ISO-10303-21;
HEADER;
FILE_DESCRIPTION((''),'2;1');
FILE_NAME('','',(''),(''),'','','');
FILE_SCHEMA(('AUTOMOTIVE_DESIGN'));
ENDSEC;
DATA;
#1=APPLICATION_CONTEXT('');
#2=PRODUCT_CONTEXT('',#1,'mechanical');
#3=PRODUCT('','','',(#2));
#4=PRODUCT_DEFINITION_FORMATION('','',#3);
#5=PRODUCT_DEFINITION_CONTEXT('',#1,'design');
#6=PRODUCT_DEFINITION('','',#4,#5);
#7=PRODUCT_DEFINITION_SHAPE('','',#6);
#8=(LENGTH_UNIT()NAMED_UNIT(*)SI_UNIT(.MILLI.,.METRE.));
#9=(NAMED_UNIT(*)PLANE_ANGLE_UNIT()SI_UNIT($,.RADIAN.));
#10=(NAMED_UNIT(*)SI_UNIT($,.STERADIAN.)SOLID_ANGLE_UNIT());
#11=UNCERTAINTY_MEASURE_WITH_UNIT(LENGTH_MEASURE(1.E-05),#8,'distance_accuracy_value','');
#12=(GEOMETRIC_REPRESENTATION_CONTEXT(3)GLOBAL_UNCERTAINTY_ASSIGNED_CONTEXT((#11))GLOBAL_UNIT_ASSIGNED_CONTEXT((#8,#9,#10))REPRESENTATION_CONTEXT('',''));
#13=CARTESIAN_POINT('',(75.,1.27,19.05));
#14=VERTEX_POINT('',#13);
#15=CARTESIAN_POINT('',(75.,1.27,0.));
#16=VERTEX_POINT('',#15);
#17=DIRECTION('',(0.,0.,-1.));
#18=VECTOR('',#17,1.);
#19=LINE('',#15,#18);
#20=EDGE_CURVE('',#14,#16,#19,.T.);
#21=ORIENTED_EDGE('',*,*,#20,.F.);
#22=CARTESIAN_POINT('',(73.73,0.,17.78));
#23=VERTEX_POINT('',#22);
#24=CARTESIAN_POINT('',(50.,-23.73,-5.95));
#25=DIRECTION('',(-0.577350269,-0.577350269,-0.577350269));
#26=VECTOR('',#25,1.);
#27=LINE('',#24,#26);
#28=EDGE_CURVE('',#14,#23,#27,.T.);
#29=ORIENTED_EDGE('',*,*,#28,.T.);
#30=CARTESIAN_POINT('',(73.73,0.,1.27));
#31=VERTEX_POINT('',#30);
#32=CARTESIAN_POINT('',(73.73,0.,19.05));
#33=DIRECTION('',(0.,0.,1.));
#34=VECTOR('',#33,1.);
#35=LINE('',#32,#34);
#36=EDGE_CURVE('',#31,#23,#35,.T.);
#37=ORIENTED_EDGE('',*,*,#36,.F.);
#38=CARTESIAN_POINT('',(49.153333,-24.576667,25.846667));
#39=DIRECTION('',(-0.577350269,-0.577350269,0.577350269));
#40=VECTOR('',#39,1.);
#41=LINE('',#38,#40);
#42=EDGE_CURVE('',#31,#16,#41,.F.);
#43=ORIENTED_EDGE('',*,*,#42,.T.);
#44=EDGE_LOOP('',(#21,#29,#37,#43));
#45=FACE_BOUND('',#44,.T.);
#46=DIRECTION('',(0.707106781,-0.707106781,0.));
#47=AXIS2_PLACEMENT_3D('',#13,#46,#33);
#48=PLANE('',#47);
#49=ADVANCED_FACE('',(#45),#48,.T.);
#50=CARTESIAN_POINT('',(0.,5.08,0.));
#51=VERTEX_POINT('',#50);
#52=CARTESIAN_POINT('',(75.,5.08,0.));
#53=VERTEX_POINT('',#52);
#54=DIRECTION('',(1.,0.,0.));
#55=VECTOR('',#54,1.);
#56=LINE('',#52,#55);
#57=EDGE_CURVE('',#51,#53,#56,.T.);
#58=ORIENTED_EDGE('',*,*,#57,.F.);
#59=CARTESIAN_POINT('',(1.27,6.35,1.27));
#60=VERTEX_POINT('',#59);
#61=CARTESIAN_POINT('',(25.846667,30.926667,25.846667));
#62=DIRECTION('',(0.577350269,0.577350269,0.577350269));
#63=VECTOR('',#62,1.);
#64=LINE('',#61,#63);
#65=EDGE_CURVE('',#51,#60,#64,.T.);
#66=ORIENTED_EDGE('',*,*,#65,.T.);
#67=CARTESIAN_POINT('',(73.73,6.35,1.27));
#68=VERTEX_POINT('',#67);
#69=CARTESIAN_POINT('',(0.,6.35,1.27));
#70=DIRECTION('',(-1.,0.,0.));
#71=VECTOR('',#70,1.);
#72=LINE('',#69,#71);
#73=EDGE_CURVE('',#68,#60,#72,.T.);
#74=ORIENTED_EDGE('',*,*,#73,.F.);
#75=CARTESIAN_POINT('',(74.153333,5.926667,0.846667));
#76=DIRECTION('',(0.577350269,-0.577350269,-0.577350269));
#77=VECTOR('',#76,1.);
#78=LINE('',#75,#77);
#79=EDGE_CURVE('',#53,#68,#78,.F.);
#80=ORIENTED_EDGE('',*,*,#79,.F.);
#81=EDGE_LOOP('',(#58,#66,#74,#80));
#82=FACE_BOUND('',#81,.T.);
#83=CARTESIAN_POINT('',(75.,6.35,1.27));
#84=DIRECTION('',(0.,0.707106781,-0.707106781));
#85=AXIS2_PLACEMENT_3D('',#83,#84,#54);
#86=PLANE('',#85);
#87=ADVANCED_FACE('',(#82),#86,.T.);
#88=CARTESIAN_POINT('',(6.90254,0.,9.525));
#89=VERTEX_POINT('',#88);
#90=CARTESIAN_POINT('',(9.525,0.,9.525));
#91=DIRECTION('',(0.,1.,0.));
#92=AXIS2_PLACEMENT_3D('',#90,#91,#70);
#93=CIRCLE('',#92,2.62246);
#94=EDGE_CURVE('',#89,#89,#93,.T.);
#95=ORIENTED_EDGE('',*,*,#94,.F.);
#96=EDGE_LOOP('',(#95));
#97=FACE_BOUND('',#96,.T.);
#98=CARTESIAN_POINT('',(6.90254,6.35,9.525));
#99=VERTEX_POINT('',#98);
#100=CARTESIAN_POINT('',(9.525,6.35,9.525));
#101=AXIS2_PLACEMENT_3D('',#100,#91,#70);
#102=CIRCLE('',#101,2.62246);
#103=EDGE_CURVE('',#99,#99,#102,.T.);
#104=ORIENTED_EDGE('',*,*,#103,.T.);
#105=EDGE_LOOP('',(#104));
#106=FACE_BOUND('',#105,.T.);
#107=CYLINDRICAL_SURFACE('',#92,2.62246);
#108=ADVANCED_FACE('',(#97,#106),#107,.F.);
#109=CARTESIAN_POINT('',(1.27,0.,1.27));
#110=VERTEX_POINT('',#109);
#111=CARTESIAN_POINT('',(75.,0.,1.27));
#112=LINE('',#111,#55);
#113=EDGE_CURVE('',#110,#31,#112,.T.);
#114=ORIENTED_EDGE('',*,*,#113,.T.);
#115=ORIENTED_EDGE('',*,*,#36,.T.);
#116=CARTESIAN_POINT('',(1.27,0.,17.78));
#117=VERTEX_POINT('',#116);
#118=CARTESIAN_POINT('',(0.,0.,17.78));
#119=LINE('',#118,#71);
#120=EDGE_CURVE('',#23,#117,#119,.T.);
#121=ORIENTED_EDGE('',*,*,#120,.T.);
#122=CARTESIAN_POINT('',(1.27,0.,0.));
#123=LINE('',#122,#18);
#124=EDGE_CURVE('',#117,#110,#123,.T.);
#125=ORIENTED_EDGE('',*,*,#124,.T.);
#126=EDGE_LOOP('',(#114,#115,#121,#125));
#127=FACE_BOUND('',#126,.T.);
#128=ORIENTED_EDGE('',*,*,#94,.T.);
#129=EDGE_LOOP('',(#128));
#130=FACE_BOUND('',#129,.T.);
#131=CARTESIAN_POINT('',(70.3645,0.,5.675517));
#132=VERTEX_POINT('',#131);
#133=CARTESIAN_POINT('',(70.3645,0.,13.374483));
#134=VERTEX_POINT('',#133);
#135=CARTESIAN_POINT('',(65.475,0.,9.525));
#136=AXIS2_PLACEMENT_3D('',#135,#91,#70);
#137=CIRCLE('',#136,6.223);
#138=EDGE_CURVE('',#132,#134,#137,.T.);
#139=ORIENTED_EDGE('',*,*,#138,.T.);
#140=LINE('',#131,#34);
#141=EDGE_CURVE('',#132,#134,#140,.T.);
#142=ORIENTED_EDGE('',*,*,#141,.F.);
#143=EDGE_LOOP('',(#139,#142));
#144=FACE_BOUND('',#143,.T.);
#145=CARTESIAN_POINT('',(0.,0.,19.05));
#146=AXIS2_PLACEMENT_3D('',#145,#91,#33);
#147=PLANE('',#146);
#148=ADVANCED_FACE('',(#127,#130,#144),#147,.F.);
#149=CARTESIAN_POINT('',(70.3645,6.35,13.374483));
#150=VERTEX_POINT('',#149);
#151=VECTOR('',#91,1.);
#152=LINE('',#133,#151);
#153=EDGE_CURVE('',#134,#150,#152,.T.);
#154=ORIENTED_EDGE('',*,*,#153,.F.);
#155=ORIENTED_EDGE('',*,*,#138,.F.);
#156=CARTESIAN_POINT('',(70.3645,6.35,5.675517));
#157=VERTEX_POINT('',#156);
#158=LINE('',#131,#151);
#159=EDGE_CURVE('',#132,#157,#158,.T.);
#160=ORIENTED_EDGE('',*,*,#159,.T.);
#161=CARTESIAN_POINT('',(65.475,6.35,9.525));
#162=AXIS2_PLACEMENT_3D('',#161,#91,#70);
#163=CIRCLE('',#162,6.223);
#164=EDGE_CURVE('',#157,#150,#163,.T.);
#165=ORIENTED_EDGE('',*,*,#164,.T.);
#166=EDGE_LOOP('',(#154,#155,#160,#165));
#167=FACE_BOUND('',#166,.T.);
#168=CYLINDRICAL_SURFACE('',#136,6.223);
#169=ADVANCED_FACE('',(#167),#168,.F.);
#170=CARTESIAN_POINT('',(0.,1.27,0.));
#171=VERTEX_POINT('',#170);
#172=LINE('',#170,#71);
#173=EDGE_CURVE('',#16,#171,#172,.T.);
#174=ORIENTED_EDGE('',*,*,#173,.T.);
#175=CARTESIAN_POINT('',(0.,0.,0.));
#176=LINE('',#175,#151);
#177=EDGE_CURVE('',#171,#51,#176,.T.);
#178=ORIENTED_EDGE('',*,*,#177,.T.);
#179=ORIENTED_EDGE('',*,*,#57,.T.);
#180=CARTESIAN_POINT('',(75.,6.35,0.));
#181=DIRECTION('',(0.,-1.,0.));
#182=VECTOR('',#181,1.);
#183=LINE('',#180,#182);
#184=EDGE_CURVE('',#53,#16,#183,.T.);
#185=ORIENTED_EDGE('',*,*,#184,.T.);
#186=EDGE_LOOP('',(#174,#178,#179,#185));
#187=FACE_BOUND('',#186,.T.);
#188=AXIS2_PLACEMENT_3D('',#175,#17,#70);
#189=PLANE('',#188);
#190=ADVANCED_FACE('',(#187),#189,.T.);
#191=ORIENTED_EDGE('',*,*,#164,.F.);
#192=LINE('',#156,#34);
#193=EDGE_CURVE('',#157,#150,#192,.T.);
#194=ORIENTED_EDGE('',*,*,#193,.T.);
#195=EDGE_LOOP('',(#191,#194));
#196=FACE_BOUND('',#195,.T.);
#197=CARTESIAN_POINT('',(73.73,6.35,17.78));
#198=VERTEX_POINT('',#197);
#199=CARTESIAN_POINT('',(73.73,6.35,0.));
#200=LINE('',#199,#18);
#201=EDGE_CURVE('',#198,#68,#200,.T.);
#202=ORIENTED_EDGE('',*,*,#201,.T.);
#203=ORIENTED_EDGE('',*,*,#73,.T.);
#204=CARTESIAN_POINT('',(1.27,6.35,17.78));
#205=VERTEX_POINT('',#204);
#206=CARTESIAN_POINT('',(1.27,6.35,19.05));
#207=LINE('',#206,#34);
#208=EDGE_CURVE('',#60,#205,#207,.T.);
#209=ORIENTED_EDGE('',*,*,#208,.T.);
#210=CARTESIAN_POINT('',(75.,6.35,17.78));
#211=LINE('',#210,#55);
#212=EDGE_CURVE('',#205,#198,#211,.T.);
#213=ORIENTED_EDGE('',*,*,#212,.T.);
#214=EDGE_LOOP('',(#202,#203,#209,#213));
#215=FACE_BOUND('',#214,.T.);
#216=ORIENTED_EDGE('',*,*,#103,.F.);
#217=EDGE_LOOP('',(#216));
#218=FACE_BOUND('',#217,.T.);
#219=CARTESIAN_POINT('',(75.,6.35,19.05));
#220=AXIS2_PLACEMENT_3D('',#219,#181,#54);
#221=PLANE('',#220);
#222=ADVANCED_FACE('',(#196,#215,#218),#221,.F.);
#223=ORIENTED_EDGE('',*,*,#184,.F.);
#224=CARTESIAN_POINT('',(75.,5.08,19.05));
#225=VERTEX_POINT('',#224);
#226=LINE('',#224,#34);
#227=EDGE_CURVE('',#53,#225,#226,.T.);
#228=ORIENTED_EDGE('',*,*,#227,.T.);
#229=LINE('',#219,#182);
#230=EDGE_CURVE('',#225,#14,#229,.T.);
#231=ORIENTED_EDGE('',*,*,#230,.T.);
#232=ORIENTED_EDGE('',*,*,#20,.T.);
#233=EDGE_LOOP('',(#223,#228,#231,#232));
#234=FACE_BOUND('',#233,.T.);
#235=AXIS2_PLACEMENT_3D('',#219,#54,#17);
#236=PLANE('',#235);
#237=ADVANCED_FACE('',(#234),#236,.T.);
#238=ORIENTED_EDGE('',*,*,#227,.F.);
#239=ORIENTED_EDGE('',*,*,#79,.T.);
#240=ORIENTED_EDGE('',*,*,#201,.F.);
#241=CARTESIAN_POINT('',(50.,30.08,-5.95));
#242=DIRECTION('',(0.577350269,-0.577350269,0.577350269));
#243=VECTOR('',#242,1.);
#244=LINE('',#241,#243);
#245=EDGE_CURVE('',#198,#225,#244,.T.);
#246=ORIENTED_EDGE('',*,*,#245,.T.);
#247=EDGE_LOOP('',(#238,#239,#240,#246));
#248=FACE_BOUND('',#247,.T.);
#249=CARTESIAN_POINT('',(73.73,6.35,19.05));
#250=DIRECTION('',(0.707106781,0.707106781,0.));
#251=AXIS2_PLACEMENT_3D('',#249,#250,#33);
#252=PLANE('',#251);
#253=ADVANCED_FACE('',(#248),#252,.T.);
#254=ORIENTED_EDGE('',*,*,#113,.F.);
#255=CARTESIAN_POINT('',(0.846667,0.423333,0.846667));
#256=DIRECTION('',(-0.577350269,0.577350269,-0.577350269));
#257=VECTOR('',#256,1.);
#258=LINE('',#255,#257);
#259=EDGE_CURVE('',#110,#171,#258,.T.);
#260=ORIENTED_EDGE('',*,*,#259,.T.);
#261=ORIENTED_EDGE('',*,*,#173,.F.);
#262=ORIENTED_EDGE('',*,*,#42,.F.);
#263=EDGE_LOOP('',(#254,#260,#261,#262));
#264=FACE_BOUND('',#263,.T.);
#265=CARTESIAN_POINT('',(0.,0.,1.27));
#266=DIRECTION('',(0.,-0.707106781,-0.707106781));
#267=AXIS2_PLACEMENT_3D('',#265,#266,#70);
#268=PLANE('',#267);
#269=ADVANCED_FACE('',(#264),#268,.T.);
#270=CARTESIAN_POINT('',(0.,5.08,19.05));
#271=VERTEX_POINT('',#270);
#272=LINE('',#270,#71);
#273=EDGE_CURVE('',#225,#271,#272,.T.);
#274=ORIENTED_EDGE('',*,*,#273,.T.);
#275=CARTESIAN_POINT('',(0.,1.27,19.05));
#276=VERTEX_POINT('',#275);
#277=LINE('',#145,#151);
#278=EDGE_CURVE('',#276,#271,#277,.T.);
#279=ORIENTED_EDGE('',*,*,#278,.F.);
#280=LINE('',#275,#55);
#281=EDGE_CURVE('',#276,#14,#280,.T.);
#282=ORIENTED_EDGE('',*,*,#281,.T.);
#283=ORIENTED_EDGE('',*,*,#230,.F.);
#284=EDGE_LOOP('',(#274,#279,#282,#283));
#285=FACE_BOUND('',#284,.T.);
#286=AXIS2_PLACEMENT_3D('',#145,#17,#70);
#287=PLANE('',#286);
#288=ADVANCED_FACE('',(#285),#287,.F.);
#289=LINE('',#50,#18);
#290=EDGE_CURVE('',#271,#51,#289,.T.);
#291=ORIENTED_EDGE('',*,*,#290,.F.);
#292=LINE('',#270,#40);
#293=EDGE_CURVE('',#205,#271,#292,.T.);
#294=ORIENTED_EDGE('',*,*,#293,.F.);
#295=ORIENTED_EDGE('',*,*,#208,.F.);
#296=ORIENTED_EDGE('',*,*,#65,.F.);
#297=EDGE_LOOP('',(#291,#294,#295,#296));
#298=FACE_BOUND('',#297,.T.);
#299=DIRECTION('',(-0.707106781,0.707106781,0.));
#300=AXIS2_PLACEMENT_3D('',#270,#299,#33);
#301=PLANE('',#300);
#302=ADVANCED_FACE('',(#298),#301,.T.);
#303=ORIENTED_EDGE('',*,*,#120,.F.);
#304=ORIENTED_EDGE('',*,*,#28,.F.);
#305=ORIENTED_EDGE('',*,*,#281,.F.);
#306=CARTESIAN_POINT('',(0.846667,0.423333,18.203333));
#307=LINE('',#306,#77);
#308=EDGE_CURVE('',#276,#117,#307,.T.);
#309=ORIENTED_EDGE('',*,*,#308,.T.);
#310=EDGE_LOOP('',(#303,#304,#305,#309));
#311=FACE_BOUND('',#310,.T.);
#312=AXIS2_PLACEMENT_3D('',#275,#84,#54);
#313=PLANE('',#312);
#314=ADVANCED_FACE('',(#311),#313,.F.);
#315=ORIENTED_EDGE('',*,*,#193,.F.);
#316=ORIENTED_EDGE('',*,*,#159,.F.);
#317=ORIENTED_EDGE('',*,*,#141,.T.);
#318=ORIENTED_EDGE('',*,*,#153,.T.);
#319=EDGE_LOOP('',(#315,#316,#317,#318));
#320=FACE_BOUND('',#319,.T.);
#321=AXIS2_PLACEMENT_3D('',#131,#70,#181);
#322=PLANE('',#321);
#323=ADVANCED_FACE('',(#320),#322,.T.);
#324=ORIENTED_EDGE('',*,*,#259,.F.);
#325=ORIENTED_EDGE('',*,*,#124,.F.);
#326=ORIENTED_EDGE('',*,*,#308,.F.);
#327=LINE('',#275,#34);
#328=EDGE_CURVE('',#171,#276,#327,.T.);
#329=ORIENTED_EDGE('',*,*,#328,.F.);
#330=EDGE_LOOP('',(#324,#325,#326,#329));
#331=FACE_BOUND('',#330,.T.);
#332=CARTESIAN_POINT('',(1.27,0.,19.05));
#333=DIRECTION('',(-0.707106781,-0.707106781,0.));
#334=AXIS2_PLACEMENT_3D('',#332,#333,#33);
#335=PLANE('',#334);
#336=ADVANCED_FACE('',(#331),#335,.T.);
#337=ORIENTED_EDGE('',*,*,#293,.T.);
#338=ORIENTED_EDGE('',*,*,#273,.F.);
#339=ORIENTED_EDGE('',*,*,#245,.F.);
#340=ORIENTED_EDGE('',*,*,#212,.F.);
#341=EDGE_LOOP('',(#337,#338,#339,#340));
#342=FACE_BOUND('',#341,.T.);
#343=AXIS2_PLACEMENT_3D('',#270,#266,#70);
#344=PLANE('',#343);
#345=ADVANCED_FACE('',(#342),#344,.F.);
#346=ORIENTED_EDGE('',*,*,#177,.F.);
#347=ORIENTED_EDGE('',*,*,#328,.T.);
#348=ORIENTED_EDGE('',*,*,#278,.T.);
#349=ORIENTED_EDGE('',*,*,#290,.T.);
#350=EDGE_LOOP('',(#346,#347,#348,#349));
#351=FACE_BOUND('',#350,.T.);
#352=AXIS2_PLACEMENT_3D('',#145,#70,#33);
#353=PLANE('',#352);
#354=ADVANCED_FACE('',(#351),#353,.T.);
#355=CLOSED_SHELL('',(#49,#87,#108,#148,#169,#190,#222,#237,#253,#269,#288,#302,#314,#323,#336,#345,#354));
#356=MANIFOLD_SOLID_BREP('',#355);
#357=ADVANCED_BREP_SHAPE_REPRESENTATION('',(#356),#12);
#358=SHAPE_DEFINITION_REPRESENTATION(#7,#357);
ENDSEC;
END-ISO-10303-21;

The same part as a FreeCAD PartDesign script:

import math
import FreeCAD as App
import Part
import Sketcher
Q = App.Units.Quantity


def edges_at(feature, points):
    """Names of the edges that pass closest to the given points."""
    edges = feature.Shape.Edges
    near = lambda p: min(range(len(edges)), key=lambda i: edges[i].distToShape(Part.Vertex(*p))[0])
    return sorted({f"Edge{near(p) + 1}" for p in points})


def add_polygon(sketch, points):
    """Adds a closed chain of lines whose ends are joined by coincident constraints."""
    first, n = sketch.GeometryCount, len(points)
    for a, b in zip(points, points[1:] + points[:1]):
        sketch.addGeometry(Part.LineSegment(App.Vector(*a, 0), App.Vector(*b, 0)), False)
    for i in range(n):
        sketch.addConstraint(Sketcher.Constraint("Coincident", first + i, 2, first + (i + 1) % n, 1))

doc = App.newDocument("Part")
body = doc.addObject("PartDesign::Body", "Body")

# Sketch on XY plane
sketch1 = body.newObject("Sketcher::SketchObject", "Sketch")
sketch1.AttachmentSupport = (doc.getObject("XY_Plane"), [""])
sketch1.MapMode = "FlatFace"
add_polygon(sketch1, [(0, 6.35), (0, 0), (75, 0), (75, 6.35)])  # lines 0-3
sketch1.addConstraint(Sketcher.Constraint("Vertical", 0))
sketch1.addConstraint(Sketcher.Constraint("Horizontal", 1))
sketch1.addConstraint(Sketcher.Constraint("Vertical", 2))
sketch1.addConstraint(Sketcher.Constraint("Horizontal", 3))
sketch1.addConstraint(Sketcher.Constraint("Coincident", 0, 2, -1, 1))
sketch1.addConstraint(Sketcher.Constraint("DistanceY", 0, 2, 0, 1, Q("0.25 in")))
sketch1.addConstraint(Sketcher.Constraint("DistanceX", 1, 1, 1, 2, 75.0))
pad1 = body.newObject("PartDesign::Pad", "Pad")
pad1.Profile = sketch1
pad1.Length = Q("0.75 in")

# Sketch on XZ plane
sketch2 = body.newObject("Sketcher::SketchObject", "Sketch001")
sketch2.AttachmentSupport = (doc.getObject("XZ_Plane"), [""])
sketch2.MapMode = "FlatFace"
sketch2.AttachmentOffset = App.Placement(App.Vector(0, 0, -0.25 * 25.4), App.Rotation())
sketch2.addGeometry(Part.LineSegment(App.Vector(70.3645, 13.374483, 0), App.Vector(70.3645, 5.675517, 0)), False)
sketch2.addGeometry(Part.ArcOfCircle(Part.Circle(App.Vector(65.475, 9.525, 0), App.Vector(0, 0, 1), 6.223), math.radians(38.213211), math.radians(321.786789)), False)
sketch2.addConstraint(Sketcher.Constraint("Coincident", 0, 1, 1, 1))
sketch2.addConstraint(Sketcher.Constraint("Coincident", 1, 2, 0, 2))
sketch2.addConstraint(Sketcher.Constraint("Vertical", 0))
sketch2.addConstraint(Sketcher.Constraint("Radius", 1, Q("0.245 in")))
sketch2.addConstraint(Sketcher.Constraint("DistanceY", -1, 1, 1, 3, Q("0.375 in")))
sketch2.addConstraint(Sketcher.Constraint("DistanceX", 1, 3, 0, 1, Q("0.1925 in")))
sketch2.addConstraint(Sketcher.Constraint("DistanceX", -1, 1, 1, 3, 65.475))
pocket1 = body.newObject("PartDesign::Pocket", "Pocket")
pocket1.Profile = sketch2
pocket1.Type = "ThroughAll"
pocket1.Reversed = True

# Sketch on XZ plane
sketch3 = body.newObject("Sketcher::SketchObject", "Sketch002")
sketch3.AttachmentSupport = (doc.getObject("XZ_Plane"), [""])
sketch3.MapMode = "FlatFace"
sketch3.AttachmentOffset = App.Placement(App.Vector(0, 0, -0.25 * 25.4), App.Rotation())
sketch3.addGeometry(Part.Circle(App.Vector(9.525, 9.525, 0), App.Vector(0, 0, 1), 2.62246), False)
sketch3.addConstraint(Sketcher.Constraint("Diameter", 0, 5.24492))
sketch3.addConstraint(Sketcher.Constraint("DistanceX", -1, 1, 0, 3, Q("0.375 in")))
sketch3.addConstraint(Sketcher.Constraint("DistanceY", -1, 1, 0, 3, Q("0.375 in")))
pocket2 = body.newObject("PartDesign::Pocket", "Pocket001")
pocket2.Profile = sketch3
pocket2.Type = "ThroughAll"
pocket2.Reversed = True
doc.recompute()

chamfer = body.newObject("PartDesign::Chamfer", "Chamfer")
chamfer.Base = (pocket2, edges_at(pocket2, [
    (37.5, 0, 19.05),
    (37.5, 0, 0),
    (37.5, 6.35, 0),
    (37.5, 6.35, 19.05),
    (0, 0, 9.525),
    (75, 0, 9.525),
    (75, 6.35, 9.525),
    (0, 6.35, 9.525),
]))
chamfer.Size = Q("0.05 in")

doc.recompute()
